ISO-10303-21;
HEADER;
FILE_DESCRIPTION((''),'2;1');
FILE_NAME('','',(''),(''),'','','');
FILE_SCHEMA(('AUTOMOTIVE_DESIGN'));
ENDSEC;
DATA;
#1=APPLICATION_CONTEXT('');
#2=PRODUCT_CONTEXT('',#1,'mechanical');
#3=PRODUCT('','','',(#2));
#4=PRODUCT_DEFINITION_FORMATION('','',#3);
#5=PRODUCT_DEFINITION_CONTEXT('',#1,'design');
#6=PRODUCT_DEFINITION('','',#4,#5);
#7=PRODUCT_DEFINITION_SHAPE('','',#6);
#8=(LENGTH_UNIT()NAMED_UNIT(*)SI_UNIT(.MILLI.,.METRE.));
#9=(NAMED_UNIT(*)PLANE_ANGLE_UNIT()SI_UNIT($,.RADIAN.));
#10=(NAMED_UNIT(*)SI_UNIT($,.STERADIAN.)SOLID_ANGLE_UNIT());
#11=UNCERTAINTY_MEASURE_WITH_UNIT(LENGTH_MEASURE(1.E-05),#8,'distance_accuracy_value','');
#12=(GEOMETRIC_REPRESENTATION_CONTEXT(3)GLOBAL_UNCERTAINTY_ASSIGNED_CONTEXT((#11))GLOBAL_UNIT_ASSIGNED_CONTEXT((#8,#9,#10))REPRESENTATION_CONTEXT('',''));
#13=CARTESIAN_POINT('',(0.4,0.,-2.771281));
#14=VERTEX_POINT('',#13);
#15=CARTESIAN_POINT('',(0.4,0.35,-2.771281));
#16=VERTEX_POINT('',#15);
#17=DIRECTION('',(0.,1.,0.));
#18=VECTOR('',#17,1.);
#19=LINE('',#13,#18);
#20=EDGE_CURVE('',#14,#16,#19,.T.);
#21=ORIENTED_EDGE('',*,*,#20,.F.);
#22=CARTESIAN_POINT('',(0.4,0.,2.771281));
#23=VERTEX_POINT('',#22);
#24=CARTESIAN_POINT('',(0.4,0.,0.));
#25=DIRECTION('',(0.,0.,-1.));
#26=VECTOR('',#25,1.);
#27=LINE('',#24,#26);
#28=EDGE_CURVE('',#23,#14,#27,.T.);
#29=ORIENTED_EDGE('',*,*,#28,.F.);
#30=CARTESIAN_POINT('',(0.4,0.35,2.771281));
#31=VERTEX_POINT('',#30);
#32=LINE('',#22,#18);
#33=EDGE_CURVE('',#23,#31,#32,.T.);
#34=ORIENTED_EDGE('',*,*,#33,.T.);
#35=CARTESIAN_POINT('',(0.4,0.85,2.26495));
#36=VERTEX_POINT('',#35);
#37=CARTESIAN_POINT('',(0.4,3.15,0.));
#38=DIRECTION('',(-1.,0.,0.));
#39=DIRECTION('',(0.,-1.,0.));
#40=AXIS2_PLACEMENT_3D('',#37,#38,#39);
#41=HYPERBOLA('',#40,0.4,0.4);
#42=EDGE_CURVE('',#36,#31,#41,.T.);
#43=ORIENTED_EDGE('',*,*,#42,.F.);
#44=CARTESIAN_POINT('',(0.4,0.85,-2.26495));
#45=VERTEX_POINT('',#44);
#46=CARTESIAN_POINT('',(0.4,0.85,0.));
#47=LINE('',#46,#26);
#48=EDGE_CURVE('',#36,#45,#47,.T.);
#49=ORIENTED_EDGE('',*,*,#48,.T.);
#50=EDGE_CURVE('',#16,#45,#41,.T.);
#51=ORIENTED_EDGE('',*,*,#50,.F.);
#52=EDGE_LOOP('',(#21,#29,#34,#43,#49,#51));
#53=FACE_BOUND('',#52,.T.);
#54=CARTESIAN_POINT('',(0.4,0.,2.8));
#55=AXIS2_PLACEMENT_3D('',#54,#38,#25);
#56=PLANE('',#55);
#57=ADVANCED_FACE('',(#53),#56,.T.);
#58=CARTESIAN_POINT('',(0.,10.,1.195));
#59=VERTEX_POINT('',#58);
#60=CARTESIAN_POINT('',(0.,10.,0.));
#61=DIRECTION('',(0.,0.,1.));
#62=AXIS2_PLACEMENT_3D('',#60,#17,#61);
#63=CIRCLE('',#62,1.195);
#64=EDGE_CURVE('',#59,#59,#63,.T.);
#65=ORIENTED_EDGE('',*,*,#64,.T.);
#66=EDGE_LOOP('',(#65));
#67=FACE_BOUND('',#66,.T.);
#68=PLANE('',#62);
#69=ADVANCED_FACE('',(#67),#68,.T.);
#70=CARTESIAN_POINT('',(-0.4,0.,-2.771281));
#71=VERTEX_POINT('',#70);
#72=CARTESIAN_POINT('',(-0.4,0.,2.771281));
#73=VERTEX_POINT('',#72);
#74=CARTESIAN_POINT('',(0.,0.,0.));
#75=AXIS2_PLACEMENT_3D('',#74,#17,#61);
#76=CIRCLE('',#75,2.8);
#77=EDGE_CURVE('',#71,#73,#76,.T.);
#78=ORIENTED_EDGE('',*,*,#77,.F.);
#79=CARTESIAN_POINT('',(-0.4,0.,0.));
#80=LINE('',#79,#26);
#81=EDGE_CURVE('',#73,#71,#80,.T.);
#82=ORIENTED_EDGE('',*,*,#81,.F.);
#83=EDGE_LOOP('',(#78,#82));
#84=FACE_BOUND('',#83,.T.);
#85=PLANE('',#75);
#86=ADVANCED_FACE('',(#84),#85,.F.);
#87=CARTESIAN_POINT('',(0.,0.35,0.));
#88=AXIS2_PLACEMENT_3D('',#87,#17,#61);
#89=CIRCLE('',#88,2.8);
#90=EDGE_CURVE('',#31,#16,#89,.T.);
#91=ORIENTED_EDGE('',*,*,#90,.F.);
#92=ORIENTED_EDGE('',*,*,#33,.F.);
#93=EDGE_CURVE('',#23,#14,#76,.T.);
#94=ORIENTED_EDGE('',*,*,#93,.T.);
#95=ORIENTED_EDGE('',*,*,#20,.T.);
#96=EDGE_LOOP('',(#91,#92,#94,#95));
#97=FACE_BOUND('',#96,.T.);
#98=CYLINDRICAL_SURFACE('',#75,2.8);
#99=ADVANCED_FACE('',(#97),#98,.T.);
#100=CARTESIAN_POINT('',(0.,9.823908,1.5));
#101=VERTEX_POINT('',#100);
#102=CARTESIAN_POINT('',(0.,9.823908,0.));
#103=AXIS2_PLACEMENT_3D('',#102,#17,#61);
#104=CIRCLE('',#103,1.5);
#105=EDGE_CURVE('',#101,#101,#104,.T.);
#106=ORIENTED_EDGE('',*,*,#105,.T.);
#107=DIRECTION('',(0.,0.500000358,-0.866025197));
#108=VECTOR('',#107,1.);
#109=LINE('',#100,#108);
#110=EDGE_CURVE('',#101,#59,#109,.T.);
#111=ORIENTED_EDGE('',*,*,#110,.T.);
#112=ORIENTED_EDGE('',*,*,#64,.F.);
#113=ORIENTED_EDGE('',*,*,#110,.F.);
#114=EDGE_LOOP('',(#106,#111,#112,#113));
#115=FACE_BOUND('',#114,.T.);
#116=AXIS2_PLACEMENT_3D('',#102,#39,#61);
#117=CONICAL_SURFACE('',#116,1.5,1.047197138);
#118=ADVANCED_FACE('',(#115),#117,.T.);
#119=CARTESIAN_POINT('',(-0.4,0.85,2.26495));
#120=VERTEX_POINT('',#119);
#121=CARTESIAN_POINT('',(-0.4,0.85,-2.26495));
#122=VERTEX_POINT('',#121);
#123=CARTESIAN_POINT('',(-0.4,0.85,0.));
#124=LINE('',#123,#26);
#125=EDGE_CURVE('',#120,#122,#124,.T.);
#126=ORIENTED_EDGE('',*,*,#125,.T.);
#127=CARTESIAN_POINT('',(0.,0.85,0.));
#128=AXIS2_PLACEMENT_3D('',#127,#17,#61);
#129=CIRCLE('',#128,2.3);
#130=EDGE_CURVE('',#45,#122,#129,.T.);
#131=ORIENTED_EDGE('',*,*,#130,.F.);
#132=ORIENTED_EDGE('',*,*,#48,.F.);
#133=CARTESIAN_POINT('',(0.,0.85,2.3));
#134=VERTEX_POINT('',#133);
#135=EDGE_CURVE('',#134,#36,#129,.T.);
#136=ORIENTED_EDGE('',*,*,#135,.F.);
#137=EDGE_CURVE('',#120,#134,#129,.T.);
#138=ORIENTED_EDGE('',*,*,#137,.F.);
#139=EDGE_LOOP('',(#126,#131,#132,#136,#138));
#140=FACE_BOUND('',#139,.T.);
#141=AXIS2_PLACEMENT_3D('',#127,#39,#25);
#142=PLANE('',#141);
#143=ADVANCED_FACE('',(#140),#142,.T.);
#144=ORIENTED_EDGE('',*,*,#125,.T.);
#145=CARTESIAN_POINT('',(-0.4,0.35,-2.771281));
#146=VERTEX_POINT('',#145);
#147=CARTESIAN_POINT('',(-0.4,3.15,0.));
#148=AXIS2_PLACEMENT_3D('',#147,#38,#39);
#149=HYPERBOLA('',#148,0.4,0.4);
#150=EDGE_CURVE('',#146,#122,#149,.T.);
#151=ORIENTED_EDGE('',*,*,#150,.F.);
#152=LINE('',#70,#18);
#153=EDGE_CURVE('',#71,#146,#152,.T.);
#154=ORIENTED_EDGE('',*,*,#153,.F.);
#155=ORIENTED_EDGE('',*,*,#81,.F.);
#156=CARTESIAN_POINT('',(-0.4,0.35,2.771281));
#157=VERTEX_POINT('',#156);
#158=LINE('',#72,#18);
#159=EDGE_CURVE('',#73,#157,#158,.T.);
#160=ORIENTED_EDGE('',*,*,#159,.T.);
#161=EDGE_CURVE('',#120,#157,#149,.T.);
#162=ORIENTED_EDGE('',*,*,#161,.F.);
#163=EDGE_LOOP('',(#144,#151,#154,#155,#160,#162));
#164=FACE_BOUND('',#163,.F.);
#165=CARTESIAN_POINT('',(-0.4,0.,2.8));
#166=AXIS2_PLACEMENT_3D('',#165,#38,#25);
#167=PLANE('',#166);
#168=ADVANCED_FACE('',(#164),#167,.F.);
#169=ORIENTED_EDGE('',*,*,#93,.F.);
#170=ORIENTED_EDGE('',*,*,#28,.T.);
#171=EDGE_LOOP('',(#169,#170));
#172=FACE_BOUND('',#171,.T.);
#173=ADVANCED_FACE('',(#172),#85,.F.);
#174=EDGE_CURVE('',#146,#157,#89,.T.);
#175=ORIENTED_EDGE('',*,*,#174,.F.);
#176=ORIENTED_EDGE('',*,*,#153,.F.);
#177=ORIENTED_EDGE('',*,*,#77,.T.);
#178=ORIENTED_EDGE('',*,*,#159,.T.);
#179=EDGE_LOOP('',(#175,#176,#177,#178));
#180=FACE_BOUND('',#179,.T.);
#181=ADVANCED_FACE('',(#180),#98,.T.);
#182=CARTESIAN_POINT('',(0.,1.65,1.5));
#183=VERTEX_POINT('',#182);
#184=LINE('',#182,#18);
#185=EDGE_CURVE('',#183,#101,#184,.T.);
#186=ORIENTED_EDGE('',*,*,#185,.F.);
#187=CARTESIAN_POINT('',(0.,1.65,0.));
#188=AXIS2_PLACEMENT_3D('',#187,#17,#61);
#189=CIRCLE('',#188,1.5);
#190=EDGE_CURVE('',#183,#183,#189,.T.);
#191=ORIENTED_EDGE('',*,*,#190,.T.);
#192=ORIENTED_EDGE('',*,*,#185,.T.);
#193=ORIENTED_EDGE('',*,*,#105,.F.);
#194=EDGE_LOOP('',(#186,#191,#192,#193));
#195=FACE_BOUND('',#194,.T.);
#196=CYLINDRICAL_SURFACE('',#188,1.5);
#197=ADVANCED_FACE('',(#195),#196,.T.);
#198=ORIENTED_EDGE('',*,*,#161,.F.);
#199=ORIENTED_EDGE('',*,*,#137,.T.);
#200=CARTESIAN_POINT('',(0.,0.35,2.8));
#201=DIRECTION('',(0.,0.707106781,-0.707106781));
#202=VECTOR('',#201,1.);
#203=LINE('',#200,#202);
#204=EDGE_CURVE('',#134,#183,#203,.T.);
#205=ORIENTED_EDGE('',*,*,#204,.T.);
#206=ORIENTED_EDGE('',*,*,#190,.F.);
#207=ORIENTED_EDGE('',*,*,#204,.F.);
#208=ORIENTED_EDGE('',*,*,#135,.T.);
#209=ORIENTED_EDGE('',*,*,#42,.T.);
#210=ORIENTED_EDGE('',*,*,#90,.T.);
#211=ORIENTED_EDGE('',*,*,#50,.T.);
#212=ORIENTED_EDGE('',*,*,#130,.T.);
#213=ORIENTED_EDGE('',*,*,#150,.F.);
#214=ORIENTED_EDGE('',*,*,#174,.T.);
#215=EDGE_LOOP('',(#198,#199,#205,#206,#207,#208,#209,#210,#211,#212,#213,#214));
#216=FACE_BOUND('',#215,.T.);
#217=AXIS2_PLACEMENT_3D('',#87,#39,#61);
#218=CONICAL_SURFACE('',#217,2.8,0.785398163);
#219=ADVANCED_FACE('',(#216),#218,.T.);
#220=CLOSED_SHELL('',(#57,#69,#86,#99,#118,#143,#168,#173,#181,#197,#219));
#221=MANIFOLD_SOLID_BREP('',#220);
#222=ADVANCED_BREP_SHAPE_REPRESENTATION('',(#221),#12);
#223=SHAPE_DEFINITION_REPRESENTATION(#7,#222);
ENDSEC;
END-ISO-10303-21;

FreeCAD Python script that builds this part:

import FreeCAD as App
import Part
import Sketcher
from FreeCAD import Vector
Q = App.Units.Quantity

doc = App.newDocument("Part")
body = doc.addObject("PartDesign::Body", "Body")

# Sketch on YZ plane
sketch1 = body.newObject("Sketcher::SketchObject", "Sketch")
sketch1.AttachmentSupport = (doc.getObject("YZ_Plane"), [""])
sketch1.MapMode = "FlatFace"
sketch1.addGeometry([
    Part.LineSegment(Vector(0, 2.8, 0), Vector(0, 0, 0)),  # 0
    Part.LineSegment(Vector(0, 0, 0), Vector(10, 0, 0)),  # 1
    Part.LineSegment(Vector(10, 0, 0), Vector(10, 1.2, 0)),  # 2
    Part.LineSegment(Vector(10, 1.2, 0), Vector(9.82, 1.5, 0)),  # 3
    Part.LineSegment(Vector(9.82, 1.5, 0), Vector(1.65, 1.5, 0)),  # 4
    Part.LineSegment(Vector(1.65, 1.5, 0), Vector(0.35, 2.8, 0)),  # 5
    Part.LineSegment(Vector(0.35, 2.8, 0), Vector(0, 2.8, 0)),  # 6
], False)
sketch1.addConstraint([
    Sketcher.Constraint("Coincident", 0, 2, 1, 1),
    Sketcher.Constraint("Coincident", 1, 2, 2, 1),
    Sketcher.Constraint("Coincident", 2, 2, 3, 1),
    Sketcher.Constraint("Coincident", 3, 2, 4, 1),
    Sketcher.Constraint("Coincident", 4, 2, 5, 1),
    Sketcher.Constraint("Coincident", 5, 2, 6, 1),
    Sketcher.Constraint("Coincident", 6, 2, 0, 1),
    Sketcher.Constraint("Vertical", 0),
    Sketcher.Constraint("Horizontal", 1),
    Sketcher.Constraint("Vertical", 2),
    Sketcher.Constraint("Horizontal", 4),
    Sketcher.Constraint("Horizontal", 6),
    Sketcher.Constraint("Coincident", 0, 2, -1, 1),
    Sketcher.Constraint("DistanceX", 1, 1, 1, 2, 10.0),
    Sketcher.Constraint("Angle", 5, Q("135 deg")),
    Sketcher.Constraint("DistanceY", 0, 2, 0, 1, 2.8),
    Sketcher.Constraint("DistanceX", 6, 2, 6, 1, 0.35),
    Sketcher.Constraint("DistanceY", -1, 1, 3, 2, 1.5),
    Sketcher.Constraint("DistanceY", 2, 1, 2, 2, 1.195),
    Sketcher.Constraint("DistanceX", 4, 2, 4, 1, 8.173908),
])
revolution = body.newObject("PartDesign::Revolution", "Revolution")
revolution.Profile = sketch1
revolution.ReferenceAxis = (sketch1, ["H_Axis"])
revolution.Angle = 360

# Sketch on XZ plane
sketch2 = body.newObject("Sketcher::SketchObject", "Sketch001")
sketch2.AttachmentSupport = (doc.getObject("XZ_Plane"), [""])
sketch2.MapMode = "FlatFace"
sketch2.addGeometry([
    Part.LineSegment(Vector(0.4, 2.8, 0), Vector(-0.4, 2.8, 0)),
    Part.LineSegment(Vector(-0.4, 2.8, 0), Vector(-0.4, -2.8, 0)),
    Part.LineSegment(Vector(-0.4, -2.8, 0), Vector(0.4, -2.8, 0)),
    Part.LineSegment(Vector(0.4, -2.8, 0), Vector(0.4, 2.8, 0)),
], False)
sketch2.addConstraint([
    Sketcher.Constraint("Coincident", 0, 2, 1, 1),
    Sketcher.Constraint("Coincident", 1, 2, 2, 1),
    Sketcher.Constraint("Coincident", 2, 2, 3, 1),
    Sketcher.Constraint("Coincident", 3, 2, 0, 1),
    Sketcher.Constraint("Horizontal", 0),
    Sketcher.Constraint("Vertical", 1),
    Sketcher.Constraint("Horizontal", 2),
    Sketcher.Constraint("Vertical", 3),
    Sketcher.Constraint("Symmetric", 0, 2, 2, 2, -1, 1),
    Sketcher.Constraint("DistanceX", 0, 2, 0, 1, 0.8),
    Sketcher.Constraint("DistanceY", 1, 2, 1, 1, 5.6),
])
pocket1 = body.newObject("PartDesign::Pocket", "Pocket")
pocket1.Profile = sketch2
pocket1.Length = 0.85

doc.recompute()
